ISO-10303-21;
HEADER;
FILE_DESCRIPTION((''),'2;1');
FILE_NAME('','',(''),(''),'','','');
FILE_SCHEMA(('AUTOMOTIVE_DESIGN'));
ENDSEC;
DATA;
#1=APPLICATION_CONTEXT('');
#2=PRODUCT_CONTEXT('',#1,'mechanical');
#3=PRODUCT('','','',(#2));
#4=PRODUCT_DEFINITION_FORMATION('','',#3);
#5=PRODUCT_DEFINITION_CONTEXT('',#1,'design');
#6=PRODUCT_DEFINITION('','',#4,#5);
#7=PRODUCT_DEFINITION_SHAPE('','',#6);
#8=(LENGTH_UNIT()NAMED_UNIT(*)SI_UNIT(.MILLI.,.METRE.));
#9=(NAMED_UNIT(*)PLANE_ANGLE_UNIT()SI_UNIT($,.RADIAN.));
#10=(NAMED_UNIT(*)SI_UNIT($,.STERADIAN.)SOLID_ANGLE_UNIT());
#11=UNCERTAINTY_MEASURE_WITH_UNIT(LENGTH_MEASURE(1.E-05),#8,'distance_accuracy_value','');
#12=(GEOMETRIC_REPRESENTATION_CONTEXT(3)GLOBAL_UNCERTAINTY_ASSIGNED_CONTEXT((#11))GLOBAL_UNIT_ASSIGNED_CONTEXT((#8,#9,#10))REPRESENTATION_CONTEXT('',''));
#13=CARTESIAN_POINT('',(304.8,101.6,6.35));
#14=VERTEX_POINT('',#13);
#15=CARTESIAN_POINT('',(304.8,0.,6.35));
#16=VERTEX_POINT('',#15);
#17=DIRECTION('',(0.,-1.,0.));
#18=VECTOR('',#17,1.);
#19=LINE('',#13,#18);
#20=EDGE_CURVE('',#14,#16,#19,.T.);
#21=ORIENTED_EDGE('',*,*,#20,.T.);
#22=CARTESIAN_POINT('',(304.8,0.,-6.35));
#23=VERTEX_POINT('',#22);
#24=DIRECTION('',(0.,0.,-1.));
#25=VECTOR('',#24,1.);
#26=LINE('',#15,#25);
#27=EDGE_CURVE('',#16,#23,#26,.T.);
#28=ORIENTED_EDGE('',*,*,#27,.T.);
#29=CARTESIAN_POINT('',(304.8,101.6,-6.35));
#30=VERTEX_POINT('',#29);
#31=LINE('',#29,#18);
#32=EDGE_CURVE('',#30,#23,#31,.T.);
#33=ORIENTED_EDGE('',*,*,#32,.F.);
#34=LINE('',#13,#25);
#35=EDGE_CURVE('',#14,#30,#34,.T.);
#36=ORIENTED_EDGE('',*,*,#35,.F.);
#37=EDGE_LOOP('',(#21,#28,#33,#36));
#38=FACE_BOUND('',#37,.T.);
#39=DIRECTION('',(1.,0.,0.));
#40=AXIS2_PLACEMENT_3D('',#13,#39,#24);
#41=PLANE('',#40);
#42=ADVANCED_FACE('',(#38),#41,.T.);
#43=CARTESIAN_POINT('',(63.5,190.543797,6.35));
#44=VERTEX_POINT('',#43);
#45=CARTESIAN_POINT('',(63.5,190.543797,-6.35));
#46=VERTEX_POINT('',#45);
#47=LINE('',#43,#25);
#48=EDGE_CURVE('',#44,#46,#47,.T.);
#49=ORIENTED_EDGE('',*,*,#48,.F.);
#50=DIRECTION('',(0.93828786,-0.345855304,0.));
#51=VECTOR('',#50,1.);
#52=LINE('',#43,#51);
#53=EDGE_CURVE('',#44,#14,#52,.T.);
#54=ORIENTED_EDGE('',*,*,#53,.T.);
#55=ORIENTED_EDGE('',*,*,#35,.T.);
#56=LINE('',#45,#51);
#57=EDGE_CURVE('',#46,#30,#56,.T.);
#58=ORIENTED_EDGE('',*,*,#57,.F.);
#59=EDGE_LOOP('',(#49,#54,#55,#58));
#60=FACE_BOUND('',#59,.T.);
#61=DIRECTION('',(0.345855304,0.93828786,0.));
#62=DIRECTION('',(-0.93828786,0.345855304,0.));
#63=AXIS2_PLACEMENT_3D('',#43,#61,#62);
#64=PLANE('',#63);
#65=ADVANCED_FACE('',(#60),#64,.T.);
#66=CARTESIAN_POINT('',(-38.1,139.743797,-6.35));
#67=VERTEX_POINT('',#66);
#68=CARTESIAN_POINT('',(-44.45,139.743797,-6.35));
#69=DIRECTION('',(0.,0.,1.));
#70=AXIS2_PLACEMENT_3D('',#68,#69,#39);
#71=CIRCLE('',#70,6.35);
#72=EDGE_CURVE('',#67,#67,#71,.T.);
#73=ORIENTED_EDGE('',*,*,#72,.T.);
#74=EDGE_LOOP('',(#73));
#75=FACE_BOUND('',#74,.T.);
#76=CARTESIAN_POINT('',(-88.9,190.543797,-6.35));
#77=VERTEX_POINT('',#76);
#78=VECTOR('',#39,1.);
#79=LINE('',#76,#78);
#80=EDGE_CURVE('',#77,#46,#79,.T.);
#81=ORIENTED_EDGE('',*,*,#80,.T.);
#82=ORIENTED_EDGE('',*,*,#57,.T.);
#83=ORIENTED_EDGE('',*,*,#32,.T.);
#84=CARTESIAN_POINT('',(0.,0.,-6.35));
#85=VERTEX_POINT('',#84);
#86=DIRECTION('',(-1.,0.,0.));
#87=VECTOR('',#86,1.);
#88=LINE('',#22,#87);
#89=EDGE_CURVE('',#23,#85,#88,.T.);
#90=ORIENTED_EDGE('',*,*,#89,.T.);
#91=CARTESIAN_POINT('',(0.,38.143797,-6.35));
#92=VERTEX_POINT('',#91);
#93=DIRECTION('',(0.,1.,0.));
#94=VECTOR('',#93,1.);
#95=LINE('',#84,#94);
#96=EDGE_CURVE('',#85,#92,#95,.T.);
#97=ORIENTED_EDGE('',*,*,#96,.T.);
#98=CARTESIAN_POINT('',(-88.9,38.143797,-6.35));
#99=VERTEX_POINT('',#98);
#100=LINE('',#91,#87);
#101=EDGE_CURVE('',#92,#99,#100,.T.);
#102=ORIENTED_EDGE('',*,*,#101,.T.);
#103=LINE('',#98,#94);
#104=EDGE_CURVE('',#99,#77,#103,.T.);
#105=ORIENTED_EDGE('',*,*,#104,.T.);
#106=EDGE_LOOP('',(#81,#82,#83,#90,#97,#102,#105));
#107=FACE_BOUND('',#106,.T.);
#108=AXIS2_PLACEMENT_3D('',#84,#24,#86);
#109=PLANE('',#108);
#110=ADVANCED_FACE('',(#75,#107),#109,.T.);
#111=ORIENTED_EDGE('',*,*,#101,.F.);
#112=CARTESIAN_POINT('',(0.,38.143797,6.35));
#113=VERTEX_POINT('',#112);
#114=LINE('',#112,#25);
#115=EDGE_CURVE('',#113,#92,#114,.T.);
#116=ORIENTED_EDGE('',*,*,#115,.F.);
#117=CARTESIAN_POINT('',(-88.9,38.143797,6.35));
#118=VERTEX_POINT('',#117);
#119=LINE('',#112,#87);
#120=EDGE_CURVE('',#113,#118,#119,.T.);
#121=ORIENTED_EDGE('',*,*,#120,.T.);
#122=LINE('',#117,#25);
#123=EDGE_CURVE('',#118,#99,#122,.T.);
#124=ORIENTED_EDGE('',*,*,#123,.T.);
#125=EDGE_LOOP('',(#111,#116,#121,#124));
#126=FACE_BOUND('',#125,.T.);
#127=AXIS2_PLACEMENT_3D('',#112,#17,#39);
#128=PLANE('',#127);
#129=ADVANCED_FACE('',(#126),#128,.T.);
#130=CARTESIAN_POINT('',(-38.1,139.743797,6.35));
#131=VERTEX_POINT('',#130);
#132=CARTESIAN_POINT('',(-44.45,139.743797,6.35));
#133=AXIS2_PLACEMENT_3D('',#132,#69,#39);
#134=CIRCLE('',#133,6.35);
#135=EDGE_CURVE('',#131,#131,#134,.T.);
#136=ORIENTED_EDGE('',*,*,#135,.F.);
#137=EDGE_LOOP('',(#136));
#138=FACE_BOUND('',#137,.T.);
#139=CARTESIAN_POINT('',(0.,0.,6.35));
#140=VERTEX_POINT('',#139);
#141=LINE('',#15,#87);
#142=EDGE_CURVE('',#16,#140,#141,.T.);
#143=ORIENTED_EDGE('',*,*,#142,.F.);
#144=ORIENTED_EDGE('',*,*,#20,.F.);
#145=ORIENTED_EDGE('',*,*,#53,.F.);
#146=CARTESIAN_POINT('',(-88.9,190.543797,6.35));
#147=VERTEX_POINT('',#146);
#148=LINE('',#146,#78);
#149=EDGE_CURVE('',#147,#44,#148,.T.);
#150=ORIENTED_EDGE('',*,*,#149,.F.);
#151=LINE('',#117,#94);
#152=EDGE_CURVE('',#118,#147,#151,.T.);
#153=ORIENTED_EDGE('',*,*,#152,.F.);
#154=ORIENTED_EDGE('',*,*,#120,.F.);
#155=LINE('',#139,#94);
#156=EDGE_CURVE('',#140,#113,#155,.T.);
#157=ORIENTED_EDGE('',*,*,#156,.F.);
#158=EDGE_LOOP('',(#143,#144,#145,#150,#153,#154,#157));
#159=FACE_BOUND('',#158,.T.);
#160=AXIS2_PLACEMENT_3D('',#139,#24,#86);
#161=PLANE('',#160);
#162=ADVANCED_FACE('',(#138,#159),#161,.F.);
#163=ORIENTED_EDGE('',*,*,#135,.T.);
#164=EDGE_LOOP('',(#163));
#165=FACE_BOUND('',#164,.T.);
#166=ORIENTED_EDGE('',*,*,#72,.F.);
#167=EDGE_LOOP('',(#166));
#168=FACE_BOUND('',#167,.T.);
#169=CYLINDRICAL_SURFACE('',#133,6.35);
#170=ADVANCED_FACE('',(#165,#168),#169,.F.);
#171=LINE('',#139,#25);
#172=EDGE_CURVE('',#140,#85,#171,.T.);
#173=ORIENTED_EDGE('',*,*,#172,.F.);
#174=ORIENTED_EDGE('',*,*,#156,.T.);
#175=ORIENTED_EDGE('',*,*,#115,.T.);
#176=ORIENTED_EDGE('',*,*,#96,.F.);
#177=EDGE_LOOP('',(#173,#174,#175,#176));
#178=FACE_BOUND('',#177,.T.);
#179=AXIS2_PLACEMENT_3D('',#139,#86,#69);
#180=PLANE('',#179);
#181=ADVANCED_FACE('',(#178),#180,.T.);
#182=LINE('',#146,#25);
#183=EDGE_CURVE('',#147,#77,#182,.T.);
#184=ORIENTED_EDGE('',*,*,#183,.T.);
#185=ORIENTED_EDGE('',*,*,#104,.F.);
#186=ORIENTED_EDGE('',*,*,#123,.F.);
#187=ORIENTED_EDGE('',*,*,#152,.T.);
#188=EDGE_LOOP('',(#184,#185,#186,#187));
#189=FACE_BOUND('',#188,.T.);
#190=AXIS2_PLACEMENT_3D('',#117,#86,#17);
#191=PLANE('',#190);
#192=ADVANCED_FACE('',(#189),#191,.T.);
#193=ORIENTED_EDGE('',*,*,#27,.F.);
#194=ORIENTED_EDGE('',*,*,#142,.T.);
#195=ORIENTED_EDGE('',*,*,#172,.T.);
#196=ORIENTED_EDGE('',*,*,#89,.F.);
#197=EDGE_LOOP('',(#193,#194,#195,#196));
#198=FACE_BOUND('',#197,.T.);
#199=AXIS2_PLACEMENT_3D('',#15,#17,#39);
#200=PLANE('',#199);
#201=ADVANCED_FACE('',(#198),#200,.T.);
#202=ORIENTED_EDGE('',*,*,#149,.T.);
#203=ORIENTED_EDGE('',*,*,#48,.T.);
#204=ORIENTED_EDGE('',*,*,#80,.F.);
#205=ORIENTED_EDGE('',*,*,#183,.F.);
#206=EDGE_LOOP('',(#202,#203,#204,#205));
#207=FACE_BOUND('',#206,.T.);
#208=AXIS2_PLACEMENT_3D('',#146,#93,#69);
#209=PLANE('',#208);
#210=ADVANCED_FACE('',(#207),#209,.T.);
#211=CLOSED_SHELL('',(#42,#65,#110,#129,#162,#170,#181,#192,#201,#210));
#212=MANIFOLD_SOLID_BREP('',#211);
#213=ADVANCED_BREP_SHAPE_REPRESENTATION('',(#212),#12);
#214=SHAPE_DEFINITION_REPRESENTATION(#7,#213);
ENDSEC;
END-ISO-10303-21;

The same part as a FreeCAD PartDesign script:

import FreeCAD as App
import Part
import Sketcher

V = App.Vector
Q = App.Units.Quantity

doc = App.newDocument("Part")
body = doc.addObject("PartDesign::Body", "Body")

# Sketch on XY plane
sketch1 = body.newObject("Sketcher::SketchObject", "Sketch")
sketch1.AttachmentSupport = (doc.getObject("XY_Plane"), [""])
sketch1.MapMode = "FlatFace"
sketch1.addGeometry([
    Part.LineSegment(V(-89, 38, 0), V(0, 38, 0)),  # 0
    Part.LineSegment(V(0, 38, 0), V(0, 0, 0)),  # 1
    Part.LineSegment(V(0, 0, 0), V(305, 0, 0)),  # 2
    Part.LineSegment(V(305, 0, 0), V(305, 102, 0)),  # 3
    Part.LineSegment(V(305, 102, 0), V(64, 191, 0)),  # 4
    Part.LineSegment(V(64, 191, 0), V(-89, 191, 0)),  # 5
    Part.LineSegment(V(-89, 191, 0), V(-89, 38, 0)),  # 6
], False)
sketch1.addConstraint([
    Sketcher.Constraint("Coincident", 0, 2, 1, 1),
    Sketcher.Constraint("Coincident", 1, 2, 2, 1),
    Sketcher.Constraint("Coincident", 2, 2, 3, 1),
    Sketcher.Constraint("Coincident", 3, 2, 4, 1),
    Sketcher.Constraint("Coincident", 4, 2, 5, 1),
    Sketcher.Constraint("Coincident", 5, 2, 6, 1),
    Sketcher.Constraint("Coincident", 6, 2, 0, 1),
    Sketcher.Constraint("Horizontal", 0),
    Sketcher.Constraint("Vertical", 1),
    Sketcher.Constraint("Horizontal", 2),
    Sketcher.Constraint("Vertical", 3),
    Sketcher.Constraint("Horizontal", 5),
    Sketcher.Constraint("Vertical", 6),
    Sketcher.Constraint("Coincident", 1, 2, -1, 1),
    Sketcher.Constraint("Equal", 5, 6),
    Sketcher.Constraint("DistanceX", 2, 1, 2, 2, Q("12 in")),
    Sketcher.Constraint("DistanceX", 5, 2, 5, 1, Q("6 in")),
    Sketcher.Constraint("DistanceY", 3, 1, 3, 2, Q("4 in")),
    Sketcher.Constraint("DistanceX", 0, 1, 0, 2, Q("3.5 in")),
    Sketcher.Constraint("DistanceY", 1, 2, 1, 1, Q("38.143797 mm")),
])
pad1 = body.newObject("PartDesign::Pad", "Pad")
pad1.Profile = sketch1
pad1.Length = Q("0.5 in")
pad1.Midplane = True

# Sketch on XY plane
sketch2 = body.newObject("Sketcher::SketchObject", "Sketch001")
sketch2.AttachmentSupport = (doc.getObject("XY_Plane"), [""])
sketch2.MapMode = "FlatFace"
sketch2.AttachmentOffset = App.Placement(V(0, 0, 0.25 * 25.4), App.Rotation())
sketch2.addGeometry(Part.Circle(V(-44, 140, 0), V(0, 0, 1), 6), False)
sketch2.addConstraint([
    Sketcher.Constraint("Diameter", 0, Q("0.5 in")),
    Sketcher.Constraint("DistanceX", 0, 3, -1, 1, Q("1.75 in")),
    Sketcher.Constraint("DistanceY", -1, 1, 0, 3, Q("139.743797 mm")),
])
doc.recompute()
hole = body.newObject("PartDesign::Hole", "Hole")
hole.Profile = sketch2
hole.ThreadType = "None"
hole.Diameter = Q("0.5 in")
hole.DepthType = "ThroughAll"

doc.recompute()
